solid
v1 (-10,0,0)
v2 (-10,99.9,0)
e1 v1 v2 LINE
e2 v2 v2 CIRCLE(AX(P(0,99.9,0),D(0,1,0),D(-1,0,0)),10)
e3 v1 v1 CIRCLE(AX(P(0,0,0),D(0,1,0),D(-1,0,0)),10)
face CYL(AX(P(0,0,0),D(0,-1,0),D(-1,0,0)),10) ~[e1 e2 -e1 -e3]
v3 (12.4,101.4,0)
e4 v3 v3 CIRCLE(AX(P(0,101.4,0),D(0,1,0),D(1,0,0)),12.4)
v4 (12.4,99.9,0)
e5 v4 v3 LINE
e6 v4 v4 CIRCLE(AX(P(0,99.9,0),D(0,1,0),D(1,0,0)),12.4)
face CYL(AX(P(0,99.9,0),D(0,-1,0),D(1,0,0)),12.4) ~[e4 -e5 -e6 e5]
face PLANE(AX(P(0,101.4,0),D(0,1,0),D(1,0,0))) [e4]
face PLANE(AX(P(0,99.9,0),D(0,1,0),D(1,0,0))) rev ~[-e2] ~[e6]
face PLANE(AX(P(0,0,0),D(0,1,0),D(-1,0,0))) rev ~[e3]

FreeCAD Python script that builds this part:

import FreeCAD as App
import Part
import Sketcher

V = App.Vector

doc = App.newDocument("Part")
params = doc.addObject("Spreadsheet::Sheet", "Params")
for row, (alias, value) in enumerate([
    ("sketch1_diameter", "20 mm"),
    ("pad1_length", "99.9 mm"),
    ("sketch2_diameter", "24.8 mm"),
    ("pad2_length", "1.5 mm"),
], start=1):
    params.set(f"A{row}", alias)
    params.set(f"B{row}", "=" + value)
    params.setAlias(f"B{row}", alias)

body = doc.addObject("PartDesign::Body", "Body")

# Sketch on XZ plane
sketch1 = doc.addObject("Sketcher::SketchObject", "Sketch")
body.addObject(sketch1)
sketch1.AttachmentSupport = (doc.XZ_Plane, [""])
sketch1.MapMode = "FlatFace"
sketch1.addGeometry(Part.Circle(V(0, 0, 0), V(0, 0, 1), 10), False)
sketch1.addConstraint([
    Sketcher.Constraint("Coincident", 0, 3, -1, 1),
    Sketcher.Constraint("Diameter", 0, 20.0),
])
sketch1.setExpression("Constraints[1]", "Params.sketch1_diameter")
pad1 = doc.addObject("PartDesign::Pad", "Pad")
body.addObject(pad1)
pad1.Profile = sketch1
pad1.setExpression("Length", "Params.pad1_length")
pad1.Reversed = True

# Sketch on XZ plane
sketch2 = doc.addObject("Sketcher::SketchObject", "Sketch001")
body.addObject(sketch2)
sketch2.AttachmentSupport = (doc.XZ_Plane, [""])
sketch2.MapMode = "FlatFace"
sketch2.AttachmentOffset = App.Placement(V(0, 0, -99.9), App.Rotation())
sketch2.addGeometry(Part.Circle(V(0, 0, 0), V(0, 0, 1), 12), False)
sketch2.addConstraint([
    Sketcher.Constraint("Coincident", 0, 3, -1, 1),
    Sketcher.Constraint("Diameter", 0, 24.8),
])
sketch2.setExpression("Constraints[1]", "Params.sketch2_diameter")
pad2 = doc.addObject("PartDesign::Pad", "Pad001")
body.addObject(pad2)
pad2.Profile = sketch2
pad2.setExpression("Length", "Params.pad2_length")
pad2.Reversed = True

doc.recompute()
